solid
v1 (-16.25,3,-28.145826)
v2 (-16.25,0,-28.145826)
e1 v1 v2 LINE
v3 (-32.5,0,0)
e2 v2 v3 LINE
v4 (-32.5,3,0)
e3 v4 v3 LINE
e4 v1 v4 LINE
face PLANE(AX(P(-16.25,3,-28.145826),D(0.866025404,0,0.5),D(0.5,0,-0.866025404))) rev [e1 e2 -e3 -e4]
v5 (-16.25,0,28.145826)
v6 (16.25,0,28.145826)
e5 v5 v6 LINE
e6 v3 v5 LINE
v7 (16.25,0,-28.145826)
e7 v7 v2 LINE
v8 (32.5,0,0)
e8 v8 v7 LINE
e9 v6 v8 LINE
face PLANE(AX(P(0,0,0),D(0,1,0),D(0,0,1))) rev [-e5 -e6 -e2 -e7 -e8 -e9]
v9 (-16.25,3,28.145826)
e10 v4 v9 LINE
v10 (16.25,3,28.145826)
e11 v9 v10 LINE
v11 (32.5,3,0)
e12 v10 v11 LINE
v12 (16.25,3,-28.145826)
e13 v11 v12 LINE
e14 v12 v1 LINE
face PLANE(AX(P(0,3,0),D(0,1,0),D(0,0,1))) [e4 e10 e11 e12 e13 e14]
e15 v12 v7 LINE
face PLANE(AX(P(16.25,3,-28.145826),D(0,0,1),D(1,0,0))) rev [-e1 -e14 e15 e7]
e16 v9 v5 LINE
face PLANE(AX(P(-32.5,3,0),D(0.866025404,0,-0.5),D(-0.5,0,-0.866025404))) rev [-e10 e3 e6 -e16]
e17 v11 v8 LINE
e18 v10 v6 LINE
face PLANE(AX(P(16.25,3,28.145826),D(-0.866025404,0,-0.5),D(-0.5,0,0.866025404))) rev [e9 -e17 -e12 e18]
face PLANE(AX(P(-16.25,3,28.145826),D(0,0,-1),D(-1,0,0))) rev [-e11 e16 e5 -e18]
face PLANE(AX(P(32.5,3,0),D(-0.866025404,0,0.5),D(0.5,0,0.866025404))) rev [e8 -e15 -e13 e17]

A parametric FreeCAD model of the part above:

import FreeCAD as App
import Part
import Sketcher
from FreeCAD import Vector
Q = App.Units.Quantity

doc = App.newDocument("Part")
body = doc.addObject("PartDesign::Body", "Body")

# Sketch on XZ plane
sketch1 = doc.addObject("Sketcher::SketchObject", "Sketch")
body.addObject(sketch1)
sketch1.AttachmentSupport = (doc.XZ_Plane, [""])
sketch1.MapMode = "FlatFace"
sketch1.addGeometry([
    Part.LineSegment(Vector(-32, 0, 0), Vector(-16, 28, 0)),  # 0
    Part.LineSegment(Vector(-16, 28, 0), Vector(16, 28, 0)),  # 1
    Part.LineSegment(Vector(16, 28, 0), Vector(32, 0, 0)),  # 2
    Part.LineSegment(Vector(32, 0, 0), Vector(16, -28, 0)),  # 3
    Part.LineSegment(Vector(16, -28, 0), Vector(-16, -28, 0)),  # 4
    Part.LineSegment(Vector(-16, -28, 0), Vector(-32, 0, 0)),  # 5
], False)
sketch1.addConstraint([
    Sketcher.Constraint("Coincident", 0, 2, 1, 1),
    Sketcher.Constraint("Coincident", 1, 2, 2, 1),
    Sketcher.Constraint("Coincident", 2, 2, 3, 1),
    Sketcher.Constraint("Coincident", 3, 2, 4, 1),
    Sketcher.Constraint("Coincident", 4, 2, 5, 1),
    Sketcher.Constraint("Coincident", 5, 2, 0, 1),
    Sketcher.Constraint("Horizontal", 1),
    Sketcher.Constraint("Horizontal", 4),
    Sketcher.Constraint("Symmetric", 0, 2, 3, 2, -1, 1),
    Sketcher.Constraint("Symmetric", 2, 2, 5, 2, -1, 1),
    Sketcher.Constraint("PointOnObject", 2, 2, -1),
    Sketcher.Constraint("Parallel", 2, 5),
    Sketcher.Constraint("Vertical", 1, 2, 3, 2),
    Sketcher.Constraint("Angle", 0, Q("60 deg")),
    Sketcher.Constraint("DistanceX", 1, 1, 1, 2, 32.5),
    Sketcher.Constraint("DistanceX", 5, 2, 2, 2, 65.0),
])
pad1 = doc.addObject("PartDesign::Pad", "Pad")
body.addObject(pad1)
pad1.Profile = sketch1
pad1.Length = 3
pad1.Reversed = True

doc.recompute()
